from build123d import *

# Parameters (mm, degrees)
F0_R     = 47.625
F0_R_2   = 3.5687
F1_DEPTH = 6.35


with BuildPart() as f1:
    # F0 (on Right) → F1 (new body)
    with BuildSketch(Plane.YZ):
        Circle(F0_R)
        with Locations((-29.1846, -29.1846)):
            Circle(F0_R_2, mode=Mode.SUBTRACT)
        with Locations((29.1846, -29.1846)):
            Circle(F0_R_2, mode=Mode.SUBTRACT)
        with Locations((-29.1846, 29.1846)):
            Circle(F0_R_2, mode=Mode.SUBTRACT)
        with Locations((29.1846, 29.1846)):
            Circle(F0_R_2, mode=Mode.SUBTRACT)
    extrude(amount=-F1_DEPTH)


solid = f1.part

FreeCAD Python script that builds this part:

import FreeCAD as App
import Part
import Sketcher

V = App.Vector
Q = App.Units.Quantity

doc = App.newDocument("Part")
body = doc.addObject("PartDesign::Body", "Body")

# Sketch on YZ plane
sketch1 = doc.addObject("Sketcher::SketchObject", "Sketch")
body.addObject(sketch1)
sketch1.AttachmentSupport = (doc.YZ_Plane, [""])
sketch1.MapMode = "FlatFace"
sketch1.addGeometry([
    Part.Circle(V(0, 0, 0), V(0, 0, 1), 47.6),  # 0
    Part.Circle(V(-29.2, -29.2, 0), V(0, 0, 1), 3.6),  # 1
    Part.Circle(V(29.2, -29.2, 0), V(0, 0, 1), 3.6),  # 2
    Part.Circle(V(-29.2, 29.2, 0), V(0, 0, 1), 3.6),  # 3
    Part.Circle(V(29.2, 29.2, 0), V(0, 0, 1), 3.6),  # 4
], False)
sketch1.addConstraint([
    Sketcher.Constraint("Coincident", 0, 3, -1, 1),
    Sketcher.Constraint("Equal", 1, 2),
    Sketcher.Constraint("Equal", 2, 3),
    Sketcher.Constraint("Equal", 3, 4),
    Sketcher.Constraint("Symmetric", 2, 3, 3, 3, -1, 1),
    Sketcher.Constraint("Symmetric", 1, 3, 4, 3, -1, 1),
    Sketcher.Constraint("Symmetric", 1, 3, 2, 3, -2),
    Sketcher.Constraint("Diameter", 0, Q("3.75 in")),
    Sketcher.Constraint("Diameter", 1, Q("0.281 in")),
    Sketcher.Constraint("DistanceX", 1, 3, -1, 1, Q("1.149 in")),
    Sketcher.Constraint("DistanceY", 1, 3, -1, 1, Q("1.149 in")),
])
pad1 = doc.addObject("PartDesign::Pad", "Pad")
body.addObject(pad1)
pad1.Profile = sketch1
pad1.Length = Q("0.25 in")
pad1.Reversed = True

doc.recompute()
